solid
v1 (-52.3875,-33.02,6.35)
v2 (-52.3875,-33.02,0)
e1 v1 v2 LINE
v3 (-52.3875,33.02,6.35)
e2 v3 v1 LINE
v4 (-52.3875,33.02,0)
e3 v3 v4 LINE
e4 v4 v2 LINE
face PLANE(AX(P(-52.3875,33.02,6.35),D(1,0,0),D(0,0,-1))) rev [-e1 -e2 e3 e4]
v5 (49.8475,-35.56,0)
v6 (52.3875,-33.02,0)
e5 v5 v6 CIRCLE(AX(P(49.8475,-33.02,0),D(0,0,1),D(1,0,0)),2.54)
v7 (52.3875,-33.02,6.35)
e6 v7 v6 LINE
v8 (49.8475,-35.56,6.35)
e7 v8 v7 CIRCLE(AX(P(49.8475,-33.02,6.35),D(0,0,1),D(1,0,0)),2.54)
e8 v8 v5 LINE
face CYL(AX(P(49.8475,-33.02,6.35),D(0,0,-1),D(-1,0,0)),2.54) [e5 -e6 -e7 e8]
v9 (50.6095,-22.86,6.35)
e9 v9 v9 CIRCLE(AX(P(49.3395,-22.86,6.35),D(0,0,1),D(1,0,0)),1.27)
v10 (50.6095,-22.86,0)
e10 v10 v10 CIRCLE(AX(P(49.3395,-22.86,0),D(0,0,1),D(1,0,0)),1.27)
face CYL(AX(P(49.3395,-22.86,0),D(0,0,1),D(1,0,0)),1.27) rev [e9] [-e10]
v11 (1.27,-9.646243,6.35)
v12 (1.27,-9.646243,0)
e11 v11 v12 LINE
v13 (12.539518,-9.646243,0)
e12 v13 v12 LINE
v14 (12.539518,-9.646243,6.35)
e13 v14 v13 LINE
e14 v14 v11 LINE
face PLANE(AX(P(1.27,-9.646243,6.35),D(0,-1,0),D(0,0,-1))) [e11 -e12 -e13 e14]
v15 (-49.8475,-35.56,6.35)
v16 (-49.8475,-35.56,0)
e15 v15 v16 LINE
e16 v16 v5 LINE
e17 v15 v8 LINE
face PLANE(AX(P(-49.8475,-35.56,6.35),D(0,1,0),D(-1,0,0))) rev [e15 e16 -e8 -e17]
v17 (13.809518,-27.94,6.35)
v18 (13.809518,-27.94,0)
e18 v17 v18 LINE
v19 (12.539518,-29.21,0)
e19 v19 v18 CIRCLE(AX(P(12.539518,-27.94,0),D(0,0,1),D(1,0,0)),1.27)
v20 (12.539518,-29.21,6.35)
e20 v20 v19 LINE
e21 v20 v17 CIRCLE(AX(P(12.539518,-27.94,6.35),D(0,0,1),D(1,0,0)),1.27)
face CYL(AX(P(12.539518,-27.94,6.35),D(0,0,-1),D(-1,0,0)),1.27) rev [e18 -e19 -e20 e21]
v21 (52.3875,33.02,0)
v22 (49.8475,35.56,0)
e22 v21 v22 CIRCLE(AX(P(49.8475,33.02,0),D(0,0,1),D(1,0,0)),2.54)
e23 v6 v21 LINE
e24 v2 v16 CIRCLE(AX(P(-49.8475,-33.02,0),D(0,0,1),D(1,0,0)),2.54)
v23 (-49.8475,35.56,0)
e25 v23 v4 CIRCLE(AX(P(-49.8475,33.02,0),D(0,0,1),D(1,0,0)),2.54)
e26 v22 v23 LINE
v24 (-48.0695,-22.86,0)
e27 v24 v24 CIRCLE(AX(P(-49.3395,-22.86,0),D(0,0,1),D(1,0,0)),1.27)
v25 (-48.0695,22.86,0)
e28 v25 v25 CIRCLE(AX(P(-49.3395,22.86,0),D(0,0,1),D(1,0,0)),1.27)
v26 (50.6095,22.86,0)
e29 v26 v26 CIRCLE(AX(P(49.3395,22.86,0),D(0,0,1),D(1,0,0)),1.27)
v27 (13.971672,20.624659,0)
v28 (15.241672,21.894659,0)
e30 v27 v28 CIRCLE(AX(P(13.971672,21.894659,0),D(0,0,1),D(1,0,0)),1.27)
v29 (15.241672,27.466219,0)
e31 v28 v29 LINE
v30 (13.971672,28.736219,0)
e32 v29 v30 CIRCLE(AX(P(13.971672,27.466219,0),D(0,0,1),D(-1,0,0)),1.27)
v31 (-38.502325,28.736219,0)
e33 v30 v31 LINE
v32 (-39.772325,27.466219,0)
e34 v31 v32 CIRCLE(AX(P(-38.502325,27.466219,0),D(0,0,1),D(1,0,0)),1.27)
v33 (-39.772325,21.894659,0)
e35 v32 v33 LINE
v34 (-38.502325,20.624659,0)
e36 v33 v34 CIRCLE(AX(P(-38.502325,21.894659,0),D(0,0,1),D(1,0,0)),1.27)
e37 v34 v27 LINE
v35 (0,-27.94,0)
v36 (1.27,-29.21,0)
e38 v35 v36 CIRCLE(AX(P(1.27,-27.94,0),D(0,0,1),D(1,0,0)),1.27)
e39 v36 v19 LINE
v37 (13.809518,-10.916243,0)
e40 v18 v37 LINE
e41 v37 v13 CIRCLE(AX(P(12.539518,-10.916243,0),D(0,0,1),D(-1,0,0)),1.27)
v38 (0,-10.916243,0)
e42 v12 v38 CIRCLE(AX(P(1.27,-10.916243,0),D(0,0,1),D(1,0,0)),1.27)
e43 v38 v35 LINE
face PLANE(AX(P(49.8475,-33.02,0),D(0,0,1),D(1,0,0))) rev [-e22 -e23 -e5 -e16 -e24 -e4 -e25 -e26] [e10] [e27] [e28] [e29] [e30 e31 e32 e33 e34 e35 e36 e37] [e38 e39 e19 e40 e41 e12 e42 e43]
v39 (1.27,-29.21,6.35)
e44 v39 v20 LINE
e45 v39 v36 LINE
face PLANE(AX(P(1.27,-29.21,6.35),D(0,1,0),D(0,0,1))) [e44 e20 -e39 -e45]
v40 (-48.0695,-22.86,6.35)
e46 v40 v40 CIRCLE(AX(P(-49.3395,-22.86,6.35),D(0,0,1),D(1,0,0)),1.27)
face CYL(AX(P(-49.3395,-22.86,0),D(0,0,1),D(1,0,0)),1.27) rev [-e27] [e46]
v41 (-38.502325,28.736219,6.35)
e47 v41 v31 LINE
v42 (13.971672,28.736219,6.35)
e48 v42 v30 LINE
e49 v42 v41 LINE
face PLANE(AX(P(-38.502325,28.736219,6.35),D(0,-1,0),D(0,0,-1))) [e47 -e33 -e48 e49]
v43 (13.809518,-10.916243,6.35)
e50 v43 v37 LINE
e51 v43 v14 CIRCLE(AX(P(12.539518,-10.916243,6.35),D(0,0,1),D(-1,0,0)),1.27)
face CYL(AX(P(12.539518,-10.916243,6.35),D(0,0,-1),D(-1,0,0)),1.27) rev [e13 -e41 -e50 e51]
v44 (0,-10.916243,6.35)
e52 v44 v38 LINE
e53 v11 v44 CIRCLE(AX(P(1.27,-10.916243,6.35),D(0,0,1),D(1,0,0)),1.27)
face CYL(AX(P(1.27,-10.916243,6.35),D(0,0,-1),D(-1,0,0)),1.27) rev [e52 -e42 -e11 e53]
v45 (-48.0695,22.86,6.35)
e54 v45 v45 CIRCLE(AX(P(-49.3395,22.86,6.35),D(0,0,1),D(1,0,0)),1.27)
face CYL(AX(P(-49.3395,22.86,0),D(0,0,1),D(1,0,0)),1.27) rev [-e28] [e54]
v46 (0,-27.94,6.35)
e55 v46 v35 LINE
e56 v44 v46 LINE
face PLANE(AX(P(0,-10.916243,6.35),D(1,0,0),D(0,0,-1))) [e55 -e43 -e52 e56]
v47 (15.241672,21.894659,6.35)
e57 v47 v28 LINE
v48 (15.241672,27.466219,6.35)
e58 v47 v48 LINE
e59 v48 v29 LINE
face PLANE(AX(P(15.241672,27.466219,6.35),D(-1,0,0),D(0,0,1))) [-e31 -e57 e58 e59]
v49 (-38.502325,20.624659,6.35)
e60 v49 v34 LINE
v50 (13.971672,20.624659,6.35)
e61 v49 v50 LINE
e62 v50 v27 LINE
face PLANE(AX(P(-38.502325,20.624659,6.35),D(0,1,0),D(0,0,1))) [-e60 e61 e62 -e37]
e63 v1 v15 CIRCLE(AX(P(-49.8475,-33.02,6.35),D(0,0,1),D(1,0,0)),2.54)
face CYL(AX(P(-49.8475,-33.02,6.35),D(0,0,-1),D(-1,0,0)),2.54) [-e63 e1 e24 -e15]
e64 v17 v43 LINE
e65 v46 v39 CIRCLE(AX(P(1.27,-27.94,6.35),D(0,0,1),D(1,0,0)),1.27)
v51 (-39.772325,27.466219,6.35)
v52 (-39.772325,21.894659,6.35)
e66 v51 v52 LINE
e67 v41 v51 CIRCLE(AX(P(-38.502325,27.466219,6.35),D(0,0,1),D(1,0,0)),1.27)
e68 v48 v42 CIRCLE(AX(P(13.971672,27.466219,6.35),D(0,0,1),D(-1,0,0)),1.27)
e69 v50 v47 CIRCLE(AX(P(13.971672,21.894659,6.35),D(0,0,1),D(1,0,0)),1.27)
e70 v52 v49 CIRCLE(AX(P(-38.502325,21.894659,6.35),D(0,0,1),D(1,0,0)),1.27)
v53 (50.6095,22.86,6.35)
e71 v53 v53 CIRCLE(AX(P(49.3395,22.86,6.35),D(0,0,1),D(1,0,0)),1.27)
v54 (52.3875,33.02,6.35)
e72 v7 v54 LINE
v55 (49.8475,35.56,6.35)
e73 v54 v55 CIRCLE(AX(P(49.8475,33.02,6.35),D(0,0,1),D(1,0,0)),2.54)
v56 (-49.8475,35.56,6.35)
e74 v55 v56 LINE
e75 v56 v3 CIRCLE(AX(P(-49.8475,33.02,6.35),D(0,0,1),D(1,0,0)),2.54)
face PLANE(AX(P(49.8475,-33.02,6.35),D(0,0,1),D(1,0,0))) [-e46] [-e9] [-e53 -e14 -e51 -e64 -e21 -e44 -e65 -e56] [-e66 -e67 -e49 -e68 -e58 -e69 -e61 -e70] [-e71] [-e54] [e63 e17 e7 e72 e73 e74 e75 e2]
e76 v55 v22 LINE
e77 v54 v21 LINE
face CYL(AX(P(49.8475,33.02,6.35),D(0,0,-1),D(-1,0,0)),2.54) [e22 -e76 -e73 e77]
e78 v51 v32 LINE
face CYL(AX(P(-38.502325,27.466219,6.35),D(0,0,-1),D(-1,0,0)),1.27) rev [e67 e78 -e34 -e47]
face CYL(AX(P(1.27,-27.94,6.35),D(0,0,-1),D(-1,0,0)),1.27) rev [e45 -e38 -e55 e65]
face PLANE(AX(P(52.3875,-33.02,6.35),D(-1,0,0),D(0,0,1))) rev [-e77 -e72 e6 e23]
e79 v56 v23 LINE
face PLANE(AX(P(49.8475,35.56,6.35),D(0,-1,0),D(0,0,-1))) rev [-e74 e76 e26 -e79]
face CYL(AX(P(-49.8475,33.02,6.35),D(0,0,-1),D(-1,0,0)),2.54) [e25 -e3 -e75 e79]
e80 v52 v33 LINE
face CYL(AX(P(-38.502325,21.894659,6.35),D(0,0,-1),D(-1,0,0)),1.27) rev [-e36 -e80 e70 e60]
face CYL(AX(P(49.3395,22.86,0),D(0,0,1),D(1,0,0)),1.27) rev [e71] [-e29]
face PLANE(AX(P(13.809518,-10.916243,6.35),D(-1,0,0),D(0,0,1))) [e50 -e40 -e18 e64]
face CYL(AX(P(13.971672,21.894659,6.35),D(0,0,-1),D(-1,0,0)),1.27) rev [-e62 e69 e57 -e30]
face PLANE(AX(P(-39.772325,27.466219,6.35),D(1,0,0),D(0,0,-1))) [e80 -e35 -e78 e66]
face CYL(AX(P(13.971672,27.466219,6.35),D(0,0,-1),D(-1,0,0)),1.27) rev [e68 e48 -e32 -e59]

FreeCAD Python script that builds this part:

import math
import FreeCAD as App
import Part
import Sketcher
from FreeCAD import Vector
Q = App.Units.Quantity

doc = App.newDocument("Part")
body = doc.addObject("PartDesign::Body", "Body")

sketch1 = body.newObject("Sketcher::SketchObject", "Sketch")
sketch1.AttachmentSupport = (doc.getObject("XY_Plane"), [""])
sketch1.MapMode = "FlatFace"
sketch1.addGeometry([
    Part.LineSegment(Vector(52.4, -33, 0), Vector(52.4, 33, 0)),
    Part.ArcOfCircle(Part.Circle(Vector(49.8, 33, 0), Vector(0, 0, 1), 2.5), math.radians(0), math.radians(90)),
    Part.LineSegment(Vector(49.8, 35.6, 0), Vector(-49.8, 35.6, 0)),
    Part.ArcOfCircle(Part.Circle(Vector(-49.8, 33, 0), Vector(0, 0, 1), 2.5), math.radians(90), math.radians(180)),
    Part.LineSegment(Vector(-52.4, 33, 0), Vector(-52.4, -33, 0)),
    Part.ArcOfCircle(Part.Circle(Vector(-49.8, -33, 0), Vector(0, 0, 1), 2.5), math.radians(-180), math.radians(-90)),
    Part.LineSegment(Vector(-49.8, -35.6, 0), Vector(49.8, -35.6, 0)),
    Part.ArcOfCircle(Part.Circle(Vector(49.8, -33, 0), Vector(0, 0, 1), 2.5), math.radians(-90), math.radians(0)),
    Part.ArcOfCircle(Part.Circle(Vector(1.3, -10.9, 0), Vector(0, 0, 1), 1.3), math.radians(90), math.radians(180)),
    Part.LineSegment(Vector(1.3, -9.6, 0), Vector(12.5, -9.6, 0)),
    Part.ArcOfCircle(Part.Circle(Vector(12.5, -10.9, 0), Vector(0, 0, 1), 1.3), math.radians(0), math.radians(90)),
    Part.LineSegment(Vector(13.8, -10.9, 0), Vector(13.8, -27.9, 0)),
    Part.ArcOfCircle(Part.Circle(Vector(12.5, -27.9, 0), Vector(0, 0, 1), 1.3), math.radians(-90), math.radians(0)),
    Part.LineSegment(Vector(12.5, -29.2, 0), Vector(1.3, -29.2, 0)),
    Part.ArcOfCircle(Part.Circle(Vector(1.3, -27.9, 0), Vector(0, 0, 1), 1.3), math.radians(180), math.radians(270)),
    Part.LineSegment(Vector(0, -27.9, 0), Vector(0, -10.9, 0)),
    Part.ArcOfCircle(Part.Circle(Vector(-38.5, 27.5, 0), Vector(0, 0, 1), 1.3), math.radians(90), math.radians(180)),
    Part.LineSegment(Vector(-38.5, 28.7, 0), Vector(14, 28.7, 0)),
    Part.ArcOfCircle(Part.Circle(Vector(14, 27.5, 0), Vector(0, 0, 1), 1.3), math.radians(0), math.radians(90)),
    Part.LineSegment(Vector(15.2, 27.5, 0), Vector(15.2, 21.9, 0)),
    Part.ArcOfCircle(Part.Circle(Vector(14, 21.9, 0), Vector(0, 0, 1), 1.3), math.radians(-90), math.radians(0)),
    Part.LineSegment(Vector(14, 20.6, 0), Vector(-38.5, 20.6, 0)),
    Part.ArcOfCircle(Part.Circle(Vector(-38.5, 21.9, 0), Vector(0, 0, 1), 1.3), math.radians(180), math.radians(270)),
    Part.LineSegment(Vector(-39.8, 21.9, 0), Vector(-39.8, 27.5, 0)),
], False)
sketch1.addConstraint([
    Sketcher.Constraint("Tangent", 0, 2, 1, 1),
    Sketcher.Constraint("Tangent", 1, 2, 2, 1),
    Sketcher.Constraint("Tangent", 2, 2, 3, 1),
    Sketcher.Constraint("Tangent", 3, 2, 4, 1),
    Sketcher.Constraint("Tangent", 4, 2, 5, 1),
    Sketcher.Constraint("Tangent", 5, 2, 6, 1),
    Sketcher.Constraint("Tangent", 6, 2, 7, 1),
    Sketcher.Constraint("Tangent", 7, 2, 0, 1),
    Sketcher.Constraint("Tangent", 8, 1, 9, 1),
    Sketcher.Constraint("Tangent", 9, 2, 10, 2),
    Sketcher.Constraint("Tangent", 10, 1, 11, 1),
    Sketcher.Constraint("Tangent", 11, 2, 12, 2),
    Sketcher.Constraint("Tangent", 12, 1, 13, 1),
    Sketcher.Constraint("Tangent", 13, 2, 14, 2),
    Sketcher.Constraint("Tangent", 14, 1, 15, 1),
    Sketcher.Constraint("Tangent", 15, 2, 8, 2),
    Sketcher.Constraint("Tangent", 16, 1, 17, 1),
    Sketcher.Constraint("Tangent", 17, 2, 18, 2),
    Sketcher.Constraint("Tangent", 18, 1, 19, 1),
    Sketcher.Constraint("Tangent", 19, 2, 20, 2),
    Sketcher.Constraint("Tangent", 20, 1, 21, 1),
    Sketcher.Constraint("Tangent", 21, 2, 22, 2),
    Sketcher.Constraint("Tangent", 22, 1, 23, 1),
    Sketcher.Constraint("Tangent", 23, 2, 16, 2),
    Sketcher.Constraint("Vertical", 0),
    Sketcher.Constraint("Horizontal", 2),
    Sketcher.Constraint("Vertical", 4),
    Sketcher.Constraint("Horizontal", 6),
    Sketcher.Constraint("Horizontal", 9),
    Sketcher.Constraint("Vertical", 11),
    Sketcher.Constraint("Horizontal", 13),
    Sketcher.Constraint("Vertical", 15),
    Sketcher.Constraint("Horizontal", 17),
    Sketcher.Constraint("Vertical", 19),
    Sketcher.Constraint("Horizontal", 21),
    Sketcher.Constraint("Vertical", 23),
    Sketcher.Constraint("Equal", 1, 3),
    Sketcher.Constraint("Equal", 3, 5),
    Sketcher.Constraint("Equal", 5, 7),
    Sketcher.Constraint("Equal", 8, 10),
    Sketcher.Constraint("Equal", 10, 12),
    Sketcher.Constraint("Equal", 12, 14),
    Sketcher.Constraint("Equal", 14, 16),
    Sketcher.Constraint("Equal", 16, 18),
    Sketcher.Constraint("Equal", 18, 20),
    Sketcher.Constraint("Equal", 20, 22),
    Sketcher.Constraint("Symmetric", 1, 3, 5, 3, -1, 1),
    Sketcher.Constraint("PointOnObject", 14, 1, -2),
    Sketcher.Constraint("Radius", 1, Q("0.1 in")),
    Sketcher.Constraint("Radius", 8, Q("0.05 in")),
    Sketcher.Constraint("DistanceY", 0, 1, 0, 2, Q("2.6 in")),
    Sketcher.Constraint("DistanceY", 12, 3, -1, 1, Q("1.1 in")),
    Sketcher.Constraint("DistanceX", 2, 2, 2, 1, Q("3.925 in")),
    Sketcher.Constraint("DistanceX", 9, 1, 9, 2, Q("11.269518 mm")),
    Sketcher.Constraint("DistanceY", 19, 2, 19, 1, Q("5.57156 mm")),
    Sketcher.Constraint("DistanceX", 17, 1, 17, 2, Q("52.473997 mm")),
    Sketcher.Constraint("DistanceY", 11, 2, 11, 1, Q("17.023757 mm")),
    Sketcher.Constraint("DistanceY", -1, 1, 16, 3, Q("27.466219 mm")),
    Sketcher.Constraint("DistanceX", 16, 3, -1, 1, Q("38.502325 mm")),
])
pad1 = body.newObject("PartDesign::Pad", "Pad")
pad1.Profile = sketch1
pad1.Length = Q("0.25 in")

sketch2 = body.newObject("Sketcher::SketchObject", "Sketch001")
sketch2.AttachmentSupport = (doc.getObject("XY_Plane"), [""])
sketch2.MapMode = "FlatFace"
sketch2.AttachmentOffset = App.Placement(Vector(0, 0, 0.25 * 25.4), App.Rotation())
sketch2.addGeometry([
    Part.Circle(Vector(-49.3, -22.9, 0), Vector(0, 0, 1), 1.3),
    Part.Circle(Vector(-49.3, 22.9, 0), Vector(0, 0, 1), 1.3),
    Part.Circle(Vector(49.3, 22.9, 0), Vector(0, 0, 1), 1.3),
    Part.Circle(Vector(49.3, -22.9, 0), Vector(0, 0, 1), 1.3),
], False)
sketch2.addConstraint([
    Sketcher.Constraint("Equal", 0, 1),
    Sketcher.Constraint("Equal", 1, 2),
    Sketcher.Constraint("Equal", 2, 3),
    Sketcher.Constraint("Symmetric", 0, 3, 2, 3, -1, 1),
    Sketcher.Constraint("Symmetric", 1, 3, 3, 3, -1, 1),
    Sketcher.Constraint("Symmetric", 1, 3, 2, 3, -2),
    Sketcher.Constraint("Diameter", 0, Q("0.1 in")),
    Sketcher.Constraint("DistanceY", 0, 3, -1, 1, Q("0.9 in")),
    Sketcher.Constraint("DistanceX", 1, 3, 2, 3, Q("3.885 in")),
])
pocket1 = body.newObject("PartDesign::Pocket", "Pocket")
pocket1.Profile = sketch2
pocket1.Type = "ThroughAll"

doc.recompute()
